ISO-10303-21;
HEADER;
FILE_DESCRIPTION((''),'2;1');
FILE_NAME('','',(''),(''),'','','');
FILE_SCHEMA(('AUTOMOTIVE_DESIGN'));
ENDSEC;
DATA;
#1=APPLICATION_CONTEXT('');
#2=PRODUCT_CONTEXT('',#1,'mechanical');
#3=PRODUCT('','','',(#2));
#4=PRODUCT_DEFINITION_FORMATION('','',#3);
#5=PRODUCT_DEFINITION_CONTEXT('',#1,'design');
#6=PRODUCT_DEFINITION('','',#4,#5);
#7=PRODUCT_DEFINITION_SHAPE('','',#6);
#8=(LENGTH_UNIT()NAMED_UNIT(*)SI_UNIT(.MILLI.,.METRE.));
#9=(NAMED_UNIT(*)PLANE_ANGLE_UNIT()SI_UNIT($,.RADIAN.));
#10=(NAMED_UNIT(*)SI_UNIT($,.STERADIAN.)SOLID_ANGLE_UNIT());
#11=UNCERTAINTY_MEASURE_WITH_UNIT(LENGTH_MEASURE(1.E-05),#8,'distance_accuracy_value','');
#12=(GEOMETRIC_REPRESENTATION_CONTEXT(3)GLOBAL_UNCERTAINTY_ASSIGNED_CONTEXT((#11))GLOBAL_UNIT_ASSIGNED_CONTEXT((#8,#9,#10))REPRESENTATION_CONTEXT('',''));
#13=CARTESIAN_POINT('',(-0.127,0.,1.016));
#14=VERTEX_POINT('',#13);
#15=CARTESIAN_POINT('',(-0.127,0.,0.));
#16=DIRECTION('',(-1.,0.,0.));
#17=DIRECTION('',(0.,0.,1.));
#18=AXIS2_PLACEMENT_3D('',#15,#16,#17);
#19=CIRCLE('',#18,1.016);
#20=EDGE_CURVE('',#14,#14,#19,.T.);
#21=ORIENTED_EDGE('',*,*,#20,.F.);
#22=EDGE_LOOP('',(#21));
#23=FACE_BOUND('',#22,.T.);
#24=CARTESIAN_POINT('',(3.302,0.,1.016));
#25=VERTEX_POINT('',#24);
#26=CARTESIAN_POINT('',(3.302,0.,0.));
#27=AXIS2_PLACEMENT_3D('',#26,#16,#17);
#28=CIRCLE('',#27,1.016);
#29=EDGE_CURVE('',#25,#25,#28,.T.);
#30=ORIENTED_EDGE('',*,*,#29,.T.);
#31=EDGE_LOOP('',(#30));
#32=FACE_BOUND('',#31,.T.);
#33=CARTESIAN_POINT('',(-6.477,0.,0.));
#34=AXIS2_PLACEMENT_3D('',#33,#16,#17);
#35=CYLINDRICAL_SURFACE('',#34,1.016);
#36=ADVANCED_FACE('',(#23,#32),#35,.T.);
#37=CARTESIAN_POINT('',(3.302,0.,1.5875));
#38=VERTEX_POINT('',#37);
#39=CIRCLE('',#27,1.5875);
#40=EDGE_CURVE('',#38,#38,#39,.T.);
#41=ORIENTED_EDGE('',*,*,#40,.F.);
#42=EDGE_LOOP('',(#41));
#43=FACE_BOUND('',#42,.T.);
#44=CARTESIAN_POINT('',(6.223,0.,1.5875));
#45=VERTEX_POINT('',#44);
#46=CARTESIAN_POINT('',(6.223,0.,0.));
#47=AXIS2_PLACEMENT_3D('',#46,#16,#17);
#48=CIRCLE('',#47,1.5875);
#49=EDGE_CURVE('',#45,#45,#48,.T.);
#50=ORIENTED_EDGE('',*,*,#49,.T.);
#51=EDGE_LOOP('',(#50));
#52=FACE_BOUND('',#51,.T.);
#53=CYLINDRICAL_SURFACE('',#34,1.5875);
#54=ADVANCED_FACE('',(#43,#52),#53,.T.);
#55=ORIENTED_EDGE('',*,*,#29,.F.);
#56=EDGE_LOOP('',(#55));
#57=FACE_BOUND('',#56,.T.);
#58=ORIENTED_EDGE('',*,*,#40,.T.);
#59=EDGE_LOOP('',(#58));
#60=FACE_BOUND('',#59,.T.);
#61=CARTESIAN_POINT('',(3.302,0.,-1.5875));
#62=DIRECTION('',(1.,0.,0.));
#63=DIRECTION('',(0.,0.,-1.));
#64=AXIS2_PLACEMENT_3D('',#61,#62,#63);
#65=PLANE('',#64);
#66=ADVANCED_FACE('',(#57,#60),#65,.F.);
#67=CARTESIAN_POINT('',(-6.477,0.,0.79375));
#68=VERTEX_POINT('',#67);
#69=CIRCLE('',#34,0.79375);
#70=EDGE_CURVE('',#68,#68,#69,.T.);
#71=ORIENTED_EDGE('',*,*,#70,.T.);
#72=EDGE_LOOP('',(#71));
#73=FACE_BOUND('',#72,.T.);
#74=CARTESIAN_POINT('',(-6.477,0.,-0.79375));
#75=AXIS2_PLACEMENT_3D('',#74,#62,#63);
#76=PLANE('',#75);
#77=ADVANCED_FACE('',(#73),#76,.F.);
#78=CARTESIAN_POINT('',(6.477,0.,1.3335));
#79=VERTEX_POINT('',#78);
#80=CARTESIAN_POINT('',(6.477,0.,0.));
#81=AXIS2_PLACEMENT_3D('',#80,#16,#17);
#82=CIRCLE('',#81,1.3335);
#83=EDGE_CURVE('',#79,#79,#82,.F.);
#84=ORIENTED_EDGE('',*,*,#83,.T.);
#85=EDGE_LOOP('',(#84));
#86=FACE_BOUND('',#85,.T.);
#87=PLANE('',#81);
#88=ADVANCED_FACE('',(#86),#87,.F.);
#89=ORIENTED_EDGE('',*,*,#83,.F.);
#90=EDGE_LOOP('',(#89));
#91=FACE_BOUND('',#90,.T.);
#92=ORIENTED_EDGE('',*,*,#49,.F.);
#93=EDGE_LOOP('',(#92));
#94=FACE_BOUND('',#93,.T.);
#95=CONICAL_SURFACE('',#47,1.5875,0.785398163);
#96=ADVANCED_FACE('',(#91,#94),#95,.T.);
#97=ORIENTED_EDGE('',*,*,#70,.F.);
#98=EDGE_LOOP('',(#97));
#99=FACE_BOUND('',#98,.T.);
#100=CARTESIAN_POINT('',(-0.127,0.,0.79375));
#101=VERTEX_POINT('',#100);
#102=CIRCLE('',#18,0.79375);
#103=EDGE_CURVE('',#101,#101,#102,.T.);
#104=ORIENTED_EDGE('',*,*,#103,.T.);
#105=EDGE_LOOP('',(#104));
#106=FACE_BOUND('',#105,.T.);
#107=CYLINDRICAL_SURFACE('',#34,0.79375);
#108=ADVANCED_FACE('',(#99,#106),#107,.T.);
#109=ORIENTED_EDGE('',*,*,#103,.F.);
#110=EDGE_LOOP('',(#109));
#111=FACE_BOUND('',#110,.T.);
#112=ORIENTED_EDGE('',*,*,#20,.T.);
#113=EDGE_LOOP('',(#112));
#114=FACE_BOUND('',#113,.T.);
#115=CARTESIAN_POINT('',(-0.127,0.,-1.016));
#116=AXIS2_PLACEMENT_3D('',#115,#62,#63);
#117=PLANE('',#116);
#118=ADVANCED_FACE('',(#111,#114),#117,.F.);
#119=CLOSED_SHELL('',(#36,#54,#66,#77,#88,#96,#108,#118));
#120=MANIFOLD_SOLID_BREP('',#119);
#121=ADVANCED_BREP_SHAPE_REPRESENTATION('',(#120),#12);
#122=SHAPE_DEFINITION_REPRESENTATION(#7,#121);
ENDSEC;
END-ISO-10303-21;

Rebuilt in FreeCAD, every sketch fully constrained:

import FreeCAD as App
import Part
import Sketcher

V = App.Vector
Q = App.Units.Quantity


def edges_at(feature, points):
    """Names of the edges that pass closest to the given points."""
    edges = feature.Shape.Edges
    near = lambda p: min(range(len(edges)), key=lambda i: edges[i].distToShape(Part.Vertex(*p))[0])
    return sorted({f"Edge{near(p) + 1}" for p in points})


def add_polygon(sketch, points):
    """Adds a closed chain of lines whose ends are joined by coincident constraints."""
    first, n = sketch.GeometryCount, len(points)
    for a, b in zip(points, points[1:] + points[:1]):
        sketch.addGeometry(Part.LineSegment(App.Vector(*a, 0), App.Vector(*b, 0)), False)
    for i in range(n):
        sketch.addConstraint(Sketcher.Constraint("Coincident", first + i, 2, first + (i + 1) % n, 1))

doc = App.newDocument("Part")
params = doc.addObject("Spreadsheet::Sheet", "Params")
for row, (alias, value) in enumerate([
    ("sketch1_width", "0.51 in"),
    ("sketch1_width2", "0.25 in"),
    ("sketch1_width3", "0.125 in"),
    ("sketch1_height", "0.0625 in"),
    ("sketch1_height2", "0.03125 in"),
    ("revolution_angle", "360 deg"),
    ("chamfer_size", "0.01 in"),
], start=1):
    params.set(f"A{row}", alias)
    params.set(f"B{row}", "=" + value)
    params.setAlias(f"B{row}", alias)

body = doc.addObject("PartDesign::Body", "Body")

# Sketch on XZ plane
sketch1 = doc.addObject("Sketcher::SketchObject", "Sketch")
body.addObject(sketch1)
sketch1.AttachmentSupport = (doc.XZ_Plane, [""])
sketch1.MapMode = "FlatFace"
add_polygon(sketch1, [(-6.48, 0), (6.48, 0), (6.48, -1.59), (3.3, -1.59), (3.3, -1.02), (-0.13, -1.02), (-0.13, -0.79), (-6.48, -0.79)])  # lines 0-7
sketch1.addConstraint(Sketcher.Constraint("Horizontal", 0))
sketch1.addConstraint(Sketcher.Constraint("Vertical", 1))
sketch1.addConstraint(Sketcher.Constraint("Horizontal", 2))
sketch1.addConstraint(Sketcher.Constraint("Vertical", 3))
sketch1.addConstraint(Sketcher.Constraint("Horizontal", 4))
sketch1.addConstraint(Sketcher.Constraint("Vertical", 5))
sketch1.addConstraint(Sketcher.Constraint("Horizontal", 6))
sketch1.addConstraint(Sketcher.Constraint("Vertical", 7))
sketch1.addConstraint(Sketcher.Constraint("Symmetric", 0, 2, 7, 2, -1, 1))
sketch1.addConstraint(Sketcher.Constraint("DistanceX", 0, 1, 0, 2, Q("0.51 in")))
sketch1.addConstraint(Sketcher.Constraint("DistanceX", 6, 2, 6, 1, Q("0.25 in")))
sketch1.addConstraint(Sketcher.Constraint("DistanceX", 2, 2, 2, 1, Q("0.125 in")))
sketch1.addConstraint(Sketcher.Constraint("DistanceY", 1, 2, 1, 1, Q("0.0625 in")))
sketch1.addConstraint(Sketcher.Constraint("DistanceY", 7, 1, 7, 2, Q("0.03125 in")))
sketch1.addConstraint(Sketcher.Constraint("DistanceY", 3, 2, -1, 1, Q("0.04 in")))
sketch1.setExpression("Constraints[17]", "Params.sketch1_width")
sketch1.setExpression("Constraints[18]", "Params.sketch1_width2")
sketch1.setExpression("Constraints[19]", "Params.sketch1_width3")
sketch1.setExpression("Constraints[20]", "Params.sketch1_height")
sketch1.setExpression("Constraints[21]", "Params.sketch1_height2")
revolution = doc.addObject("PartDesign::Revolution", "Revolution")
body.addObject(revolution)
revolution.Profile = sketch1
revolution.ReferenceAxis = (sketch1, ["H_Axis"])
revolution.setExpression("Angle", "Params.revolution_angle")
doc.recompute()

chamfer = doc.addObject("PartDesign::Chamfer", "Chamfer")
body.addObject(chamfer)
chamfer.Base = (revolution, edges_at(revolution, [(6.477, 0, -1.587)]))
chamfer.setExpression("Size", "Params.chamfer_size")

doc.recompute()
